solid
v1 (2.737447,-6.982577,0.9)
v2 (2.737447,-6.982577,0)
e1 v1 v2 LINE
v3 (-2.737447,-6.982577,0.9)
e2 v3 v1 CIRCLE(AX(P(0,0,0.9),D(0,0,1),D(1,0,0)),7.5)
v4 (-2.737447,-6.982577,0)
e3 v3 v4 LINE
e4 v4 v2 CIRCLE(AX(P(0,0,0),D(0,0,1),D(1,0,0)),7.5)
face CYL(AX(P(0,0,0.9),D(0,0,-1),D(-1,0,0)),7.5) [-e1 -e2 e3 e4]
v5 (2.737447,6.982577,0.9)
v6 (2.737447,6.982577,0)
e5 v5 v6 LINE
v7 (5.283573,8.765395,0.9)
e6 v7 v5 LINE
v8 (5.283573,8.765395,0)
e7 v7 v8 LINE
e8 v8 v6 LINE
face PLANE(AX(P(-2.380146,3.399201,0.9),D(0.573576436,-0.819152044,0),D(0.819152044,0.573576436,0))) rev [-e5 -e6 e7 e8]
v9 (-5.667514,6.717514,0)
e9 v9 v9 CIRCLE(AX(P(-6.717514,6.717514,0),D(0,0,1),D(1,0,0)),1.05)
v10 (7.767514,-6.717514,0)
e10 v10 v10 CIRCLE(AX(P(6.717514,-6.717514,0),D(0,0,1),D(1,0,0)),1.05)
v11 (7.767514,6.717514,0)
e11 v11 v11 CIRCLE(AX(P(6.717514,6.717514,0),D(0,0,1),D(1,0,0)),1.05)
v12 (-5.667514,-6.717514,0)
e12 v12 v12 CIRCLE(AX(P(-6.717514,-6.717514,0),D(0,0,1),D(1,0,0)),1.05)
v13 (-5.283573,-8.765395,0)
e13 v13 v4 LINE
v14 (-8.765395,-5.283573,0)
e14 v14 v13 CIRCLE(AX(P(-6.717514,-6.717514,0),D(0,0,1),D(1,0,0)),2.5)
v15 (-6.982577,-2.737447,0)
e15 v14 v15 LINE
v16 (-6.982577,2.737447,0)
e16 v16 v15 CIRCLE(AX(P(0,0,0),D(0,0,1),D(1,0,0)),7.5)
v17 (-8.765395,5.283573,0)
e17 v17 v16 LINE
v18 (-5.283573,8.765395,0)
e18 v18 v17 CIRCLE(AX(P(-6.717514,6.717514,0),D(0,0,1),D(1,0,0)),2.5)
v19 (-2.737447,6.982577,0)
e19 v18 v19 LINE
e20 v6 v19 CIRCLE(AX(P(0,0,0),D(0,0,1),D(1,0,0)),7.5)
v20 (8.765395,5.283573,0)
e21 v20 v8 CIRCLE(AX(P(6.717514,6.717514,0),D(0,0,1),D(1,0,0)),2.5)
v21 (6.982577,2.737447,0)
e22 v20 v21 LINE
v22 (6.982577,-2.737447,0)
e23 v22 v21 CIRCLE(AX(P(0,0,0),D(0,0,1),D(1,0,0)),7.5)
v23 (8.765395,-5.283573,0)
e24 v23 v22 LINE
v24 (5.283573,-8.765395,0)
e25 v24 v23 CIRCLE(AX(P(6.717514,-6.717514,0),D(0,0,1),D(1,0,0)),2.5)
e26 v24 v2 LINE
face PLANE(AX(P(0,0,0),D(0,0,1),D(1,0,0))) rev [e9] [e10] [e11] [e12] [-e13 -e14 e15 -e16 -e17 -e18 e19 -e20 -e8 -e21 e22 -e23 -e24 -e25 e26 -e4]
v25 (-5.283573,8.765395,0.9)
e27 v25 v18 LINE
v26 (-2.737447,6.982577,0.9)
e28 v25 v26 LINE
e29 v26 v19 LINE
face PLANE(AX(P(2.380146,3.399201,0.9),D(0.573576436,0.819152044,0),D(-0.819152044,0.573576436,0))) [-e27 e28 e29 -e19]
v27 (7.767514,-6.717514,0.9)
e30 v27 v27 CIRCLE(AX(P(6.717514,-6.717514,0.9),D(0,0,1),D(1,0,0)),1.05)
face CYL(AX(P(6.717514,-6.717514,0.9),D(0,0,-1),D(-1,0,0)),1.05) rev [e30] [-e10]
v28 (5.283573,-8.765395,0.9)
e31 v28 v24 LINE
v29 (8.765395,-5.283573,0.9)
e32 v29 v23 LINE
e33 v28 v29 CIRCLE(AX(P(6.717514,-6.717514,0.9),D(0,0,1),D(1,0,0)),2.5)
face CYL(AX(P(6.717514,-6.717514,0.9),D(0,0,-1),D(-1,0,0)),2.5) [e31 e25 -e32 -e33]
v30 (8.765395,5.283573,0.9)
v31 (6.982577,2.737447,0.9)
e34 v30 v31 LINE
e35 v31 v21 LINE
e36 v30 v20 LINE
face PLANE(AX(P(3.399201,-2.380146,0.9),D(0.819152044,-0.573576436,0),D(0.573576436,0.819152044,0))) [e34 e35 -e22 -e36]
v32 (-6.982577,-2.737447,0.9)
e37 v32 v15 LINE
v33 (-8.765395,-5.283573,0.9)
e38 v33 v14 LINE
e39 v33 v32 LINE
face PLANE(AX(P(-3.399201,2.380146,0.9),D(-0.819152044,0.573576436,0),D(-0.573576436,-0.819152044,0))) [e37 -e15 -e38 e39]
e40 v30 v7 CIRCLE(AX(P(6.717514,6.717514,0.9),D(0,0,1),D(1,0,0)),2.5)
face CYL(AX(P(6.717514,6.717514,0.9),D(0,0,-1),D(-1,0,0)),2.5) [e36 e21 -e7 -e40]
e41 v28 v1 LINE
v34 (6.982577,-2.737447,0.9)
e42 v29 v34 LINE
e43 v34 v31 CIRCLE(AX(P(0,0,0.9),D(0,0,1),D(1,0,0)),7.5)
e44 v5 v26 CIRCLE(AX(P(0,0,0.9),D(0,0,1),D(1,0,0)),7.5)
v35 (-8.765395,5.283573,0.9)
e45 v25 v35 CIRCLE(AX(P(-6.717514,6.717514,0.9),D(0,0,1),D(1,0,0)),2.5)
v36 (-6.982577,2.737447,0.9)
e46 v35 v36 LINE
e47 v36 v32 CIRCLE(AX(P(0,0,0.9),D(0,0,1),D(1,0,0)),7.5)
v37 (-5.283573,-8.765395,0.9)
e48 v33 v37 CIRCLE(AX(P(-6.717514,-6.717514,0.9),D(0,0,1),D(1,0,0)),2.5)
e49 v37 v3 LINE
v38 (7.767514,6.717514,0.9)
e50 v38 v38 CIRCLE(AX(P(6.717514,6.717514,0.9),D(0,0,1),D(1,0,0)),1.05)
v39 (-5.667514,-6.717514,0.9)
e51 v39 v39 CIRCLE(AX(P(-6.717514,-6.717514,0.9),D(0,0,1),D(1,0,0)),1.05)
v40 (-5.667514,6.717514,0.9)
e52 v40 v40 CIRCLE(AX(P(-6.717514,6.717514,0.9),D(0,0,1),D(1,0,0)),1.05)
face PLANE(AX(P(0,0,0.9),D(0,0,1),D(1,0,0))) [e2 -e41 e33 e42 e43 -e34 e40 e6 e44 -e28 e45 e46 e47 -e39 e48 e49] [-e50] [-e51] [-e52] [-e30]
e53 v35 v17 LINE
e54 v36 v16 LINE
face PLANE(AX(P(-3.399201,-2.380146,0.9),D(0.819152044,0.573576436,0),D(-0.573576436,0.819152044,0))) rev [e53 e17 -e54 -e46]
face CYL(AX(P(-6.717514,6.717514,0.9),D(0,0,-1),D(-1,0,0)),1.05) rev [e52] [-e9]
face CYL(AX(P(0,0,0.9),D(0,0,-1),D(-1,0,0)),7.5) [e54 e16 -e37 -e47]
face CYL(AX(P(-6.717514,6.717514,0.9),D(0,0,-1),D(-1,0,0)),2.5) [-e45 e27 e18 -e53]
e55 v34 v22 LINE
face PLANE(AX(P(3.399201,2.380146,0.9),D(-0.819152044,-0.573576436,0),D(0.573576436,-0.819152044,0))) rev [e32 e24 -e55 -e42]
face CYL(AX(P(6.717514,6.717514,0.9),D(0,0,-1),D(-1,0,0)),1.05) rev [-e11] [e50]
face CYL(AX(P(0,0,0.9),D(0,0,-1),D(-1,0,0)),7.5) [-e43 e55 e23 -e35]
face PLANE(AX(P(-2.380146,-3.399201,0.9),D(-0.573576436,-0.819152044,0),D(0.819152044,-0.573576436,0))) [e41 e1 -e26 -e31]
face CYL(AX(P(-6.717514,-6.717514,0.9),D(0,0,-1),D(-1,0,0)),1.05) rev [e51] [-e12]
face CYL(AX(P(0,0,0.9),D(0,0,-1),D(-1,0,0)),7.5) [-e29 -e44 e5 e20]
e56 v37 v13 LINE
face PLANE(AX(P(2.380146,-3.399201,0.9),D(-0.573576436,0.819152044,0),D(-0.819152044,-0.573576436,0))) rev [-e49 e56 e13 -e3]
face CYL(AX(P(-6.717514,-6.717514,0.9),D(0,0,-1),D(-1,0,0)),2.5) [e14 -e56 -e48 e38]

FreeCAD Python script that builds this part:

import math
import FreeCAD as App
import Part
import Sketcher
from FreeCAD import Vector
Q = App.Units.Quantity

doc = App.newDocument("Part")
params = doc.addObject("Spreadsheet::Sheet", "Params")
for row, (alias, value) in enumerate([
    ("sketch1_diameter", "2.1 mm"),
    ("sketch1_radius", "7.5 mm"),
    ("sketch1_radius2", "2.5 mm"),
    ("pad1_length", "0.9 mm"),
], start=1):
    params.set(f"A{row}", alias)
    params.set(f"B{row}", "=" + value)
    params.setAlias(f"B{row}", alias)

body = doc.addObject("PartDesign::Body", "Body")

# Sketch on XY plane
sketch1 = body.newObject("Sketcher::SketchObject", "Sketch")
sketch1.AttachmentSupport = (doc.getObject("XY_Plane"), [""])
sketch1.MapMode = "FlatFace"
sketch1.addGeometry([
    Part.ArcOfCircle(Part.Circle(Vector(0, 0, 0), Vector(0, 0, 1), 7.5), math.radians(159), math.radians(201)),  # 0
    Part.LineSegment(Vector(-7, -2.7, 0), Vector(-8.8, -5.3, 0)),  # 1
    Part.ArcOfCircle(Part.Circle(Vector(-6.7, -6.7, 0), Vector(0, 0, 1), 2.5), math.radians(145), math.radians(305)),  # 2
    Part.LineSegment(Vector(-5.3, -8.8, 0), Vector(-2.7, -7, 0)),  # 3
    Part.ArcOfCircle(Part.Circle(Vector(0, 0, 0), Vector(0, 0, 1), 7.5), math.radians(-111), math.radians(-69)),  # 4
    Part.LineSegment(Vector(2.7, -7, 0), Vector(5.3, -8.8, 0)),  # 5
    Part.ArcOfCircle(Part.Circle(Vector(6.7, -6.7, 0), Vector(0, 0, 1), 2.5), math.radians(-125), math.radians(35)),  # 6
    Part.LineSegment(Vector(8.8, -5.3, 0), Vector(7, -2.7, 0)),  # 7
    Part.ArcOfCircle(Part.Circle(Vector(0, 0, 0), Vector(0, 0, 1), 7.5), math.radians(-21), math.radians(21)),  # 8
    Part.LineSegment(Vector(7, 2.7, 0), Vector(8.8, 5.3, 0)),  # 9
    Part.ArcOfCircle(Part.Circle(Vector(6.7, 6.7, 0), Vector(0, 0, 1), 2.5), math.radians(-35), math.radians(125)),  # 10
    Part.LineSegment(Vector(5.3, 8.8, 0), Vector(2.7, 7, 0)),  # 11
    Part.ArcOfCircle(Part.Circle(Vector(0, 0, 0), Vector(0, 0, 1), 7.5), math.radians(69), math.radians(111)),  # 12
    Part.LineSegment(Vector(-2.7, 7, 0), Vector(-5.3, 8.8, 0)),  # 13
    Part.ArcOfCircle(Part.Circle(Vector(-6.7, 6.7, 0), Vector(0, 0, 1), 2.5), math.radians(55), math.radians(215)),  # 14
    Part.LineSegment(Vector(-8.8, 5.3, 0), Vector(-7, 2.7, 0)),  # 15
    Part.Circle(Vector(-6.7, -6.7, 0), Vector(0, 0, 1), 1.1),  # 16
    Part.Circle(Vector(6.7, -6.7, 0), Vector(0, 0, 1), 1.1),  # 17
    Part.Circle(Vector(-6.7, 6.7, 0), Vector(0, 0, 1), 1.1),  # 18
    Part.Circle(Vector(6.7, 6.7, 0), Vector(0, 0, 1), 1.1),  # 19
], False)
sketch1.addConstraint([
    Sketcher.Constraint("Coincident", 0, 2, 1, 1),
    Sketcher.Constraint("Tangent", 1, 2, 2, 1),
    Sketcher.Constraint("Tangent", 2, 2, 3, 1),
    Sketcher.Constraint("Coincident", 3, 2, 4, 1),
    Sketcher.Constraint("Coincident", 4, 2, 5, 1),
    Sketcher.Constraint("Tangent", 5, 2, 6, 1),
    Sketcher.Constraint("Tangent", 6, 2, 7, 1),
    Sketcher.Constraint("Coincident", 7, 2, 8, 1),
    Sketcher.Constraint("Coincident", 8, 2, 9, 1),
    Sketcher.Constraint("Tangent", 9, 2, 10, 1),
    Sketcher.Constraint("Tangent", 10, 2, 11, 1),
    Sketcher.Constraint("Coincident", 11, 2, 12, 1),
    Sketcher.Constraint("Coincident", 12, 2, 13, 1),
    Sketcher.Constraint("Tangent", 13, 2, 14, 1),
    Sketcher.Constraint("Tangent", 14, 2, 15, 1),
    Sketcher.Constraint("Coincident", 15, 2, 0, 1),
    Sketcher.Constraint("Coincident", 0, 3, -1, 1),
    Sketcher.Constraint("Coincident", 4, 3, -1, 1),
    Sketcher.Constraint("Coincident", 8, 3, -1, 1),
    Sketcher.Constraint("Coincident", 12, 3, -1, 1),
    Sketcher.Constraint("Coincident", 16, 3, 2, 3),
    Sketcher.Constraint("Coincident", 17, 3, 6, 3),
    Sketcher.Constraint("Coincident", 18, 3, 14, 3),
    Sketcher.Constraint("Coincident", 19, 3, 10, 3),
    Sketcher.Constraint("Equal", 0, 4),
    Sketcher.Constraint("Equal", 2, 6),
    Sketcher.Constraint("Equal", 4, 8),
    Sketcher.Constraint("Equal", 6, 10),
    Sketcher.Constraint("Equal", 8, 12),
    Sketcher.Constraint("Equal", 10, 14),
    Sketcher.Constraint("Equal", 16, 17),
    Sketcher.Constraint("Equal", 17, 18),
    Sketcher.Constraint("Equal", 18, 19),
    Sketcher.Constraint("Symmetric", 2, 3, 10, 3, -1, 1),
    Sketcher.Constraint("Symmetric", 6, 3, 14, 3, -1, 1),
    Sketcher.Constraint("Symmetric", 2, 3, 6, 3, -2),
    Sketcher.Constraint("Perpendicular", 1, 5),
    Sketcher.Constraint("Perpendicular", 3, 7),
    Sketcher.Constraint("Perpendicular", 5, 9),
    Sketcher.Constraint("Perpendicular", 7, 11),
    Sketcher.Constraint("Perpendicular", 9, 13),
    Sketcher.Constraint("Perpendicular", 11, 15),
    Sketcher.Constraint("Horizontal", 3, 2, 4, 2),
    Sketcher.Constraint("Equal", 1, 3),
    Sketcher.Constraint("Diameter", 16, Q("2.1 mm")),
    Sketcher.Constraint("Radius", 0, Q("7.5 mm")),
    Sketcher.Constraint("Radius", 2, Q("2.5 mm")),
    Sketcher.Constraint("Angle", 1, Q("-125 deg")),
    Sketcher.Constraint("DistanceX", 2, 3, 6, 3, Q("13.435029 mm")),
])
sketch1.setExpression("Constraints[44]", "Params.sketch1_diameter")
sketch1.setExpression("Constraints[45]", "Params.sketch1_radius")
sketch1.setExpression("Constraints[46]", "Params.sketch1_radius2")
pad1 = body.newObject("PartDesign::Pad", "Pad")
pad1.Profile = sketch1
pad1.setExpression("Length", "Params.pad1_length")

doc.recompute()
